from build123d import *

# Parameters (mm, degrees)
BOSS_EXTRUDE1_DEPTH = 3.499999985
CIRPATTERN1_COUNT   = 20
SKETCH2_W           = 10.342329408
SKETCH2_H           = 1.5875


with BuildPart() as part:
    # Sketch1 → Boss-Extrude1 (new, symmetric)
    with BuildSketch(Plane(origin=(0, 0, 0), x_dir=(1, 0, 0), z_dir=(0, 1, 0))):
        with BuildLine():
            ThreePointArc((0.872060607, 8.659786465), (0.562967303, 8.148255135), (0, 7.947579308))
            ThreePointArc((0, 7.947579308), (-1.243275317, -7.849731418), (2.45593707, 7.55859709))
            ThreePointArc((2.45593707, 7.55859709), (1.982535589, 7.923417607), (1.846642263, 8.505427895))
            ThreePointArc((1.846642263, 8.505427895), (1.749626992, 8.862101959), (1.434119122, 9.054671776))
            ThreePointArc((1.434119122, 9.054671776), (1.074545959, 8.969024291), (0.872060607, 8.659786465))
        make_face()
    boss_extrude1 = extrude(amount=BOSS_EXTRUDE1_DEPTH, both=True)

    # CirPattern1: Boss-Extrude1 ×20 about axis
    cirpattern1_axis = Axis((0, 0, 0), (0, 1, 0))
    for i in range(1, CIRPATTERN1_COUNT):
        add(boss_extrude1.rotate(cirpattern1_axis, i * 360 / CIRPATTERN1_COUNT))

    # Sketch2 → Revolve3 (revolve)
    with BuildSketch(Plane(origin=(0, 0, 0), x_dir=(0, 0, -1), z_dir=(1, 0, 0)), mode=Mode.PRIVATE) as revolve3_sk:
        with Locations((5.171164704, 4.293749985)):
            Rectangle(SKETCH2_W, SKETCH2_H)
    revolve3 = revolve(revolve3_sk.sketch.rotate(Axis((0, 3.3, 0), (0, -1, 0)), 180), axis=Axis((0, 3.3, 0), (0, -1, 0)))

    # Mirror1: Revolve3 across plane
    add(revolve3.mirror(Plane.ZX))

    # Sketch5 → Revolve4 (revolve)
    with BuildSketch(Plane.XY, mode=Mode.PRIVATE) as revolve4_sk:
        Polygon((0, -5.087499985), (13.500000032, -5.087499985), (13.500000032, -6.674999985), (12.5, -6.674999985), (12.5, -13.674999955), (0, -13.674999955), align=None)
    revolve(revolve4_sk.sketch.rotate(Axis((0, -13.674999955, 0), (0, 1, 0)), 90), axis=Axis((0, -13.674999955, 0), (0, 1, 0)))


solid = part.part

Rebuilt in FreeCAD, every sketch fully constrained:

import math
import FreeCAD as App
import Part
import Sketcher

V = App.Vector
Q = App.Units.Quantity

doc = App.newDocument("Part")
body = doc.addObject("PartDesign::Body", "Body")

# Sketch on XZ plane
sketch1 = body.newObject("Sketcher::SketchObject", "Sketch")
sketch1.AttachmentSupport = (doc.getObject("XZ_Plane"), [""])
sketch1.MapMode = "FlatFace"
sketch1.addGeometry(Part.ArcOfCircle(Part.Circle(V(0, -8.837579, 0), V(0, 0, 1), 0.89), math.radians(11.523348), math.radians(90)), False)
sketch1.addGeometry(Part.ArcOfCircle(Part.Circle(V(0, 0, 0), V(0, 0, 1), 7.947579), math.radians(-72), math.radians(270)), False)
sketch1.addGeometry(Part.ArcOfCircle(Part.Circle(V(2.730962, -8.405037, 0), V(0, 0, 1), 0.89), math.radians(108), math.radians(186.476652)), False)
sketch1.addGeometry(Part.ArcOfCircle(Part.Circle(V(1.349833, -8.561827, 0), V(0, 0, 1), 0.5), math.radians(-80.295218), math.radians(6.476652)), False)
sketch1.addGeometry(Part.ArcOfCircle(Part.Circle(V(1.361982, -8.559903, 0), V(0, 0, 1), 0.5), math.radians(-168.476652), math.radians(-81.704782)), False)
sketch1.addConstraint(Sketcher.Constraint("Tangent", 0, 2, 1, 2))
sketch1.addConstraint(Sketcher.Constraint("Tangent", 1, 1, 2, 1))
sketch1.addConstraint(Sketcher.Constraint("Tangent", 2, 2, 3, 2))
sketch1.addConstraint(Sketcher.Constraint("Coincident", 3, 1, 4, 2))
sketch1.addConstraint(Sketcher.Constraint("Tangent", 4, 1, 0, 1))
sketch1.addConstraint(Sketcher.Constraint("Coincident", 1, 3, -1, 1))
sketch1.addConstraint(Sketcher.Constraint("Equal", 0, 2))
sketch1.addConstraint(Sketcher.Constraint("Equal", 3, 4))
sketch1.addConstraint(Sketcher.Constraint("PointOnObject", 0, 3, -2))
sketch1.addConstraint(Sketcher.Constraint("Radius", 3, Q("0.5 mm")))
sketch1.addConstraint(Sketcher.Constraint("Radius", 0, Q("0.89 mm")))
sketch1.addConstraint(Sketcher.Constraint("Radius", 1, Q("7.947579 mm")))
sketch1.addConstraint(Sketcher.Constraint("DistanceY", 3, 3, 2, 2, Q("0.056399 mm")))
sketch1.addConstraint(Sketcher.Constraint("DistanceX", -1, 1, 3, 1, Q("1.434119 mm")))
sketch1.addConstraint(Sketcher.Constraint("DistanceY", 3, 1, -1, 1, Q("9.054672 mm")))
pad1 = body.newObject("PartDesign::Pad", "Pad")
pad1.Profile = sketch1
pad1.Length = 7
pad1.Midplane = True
doc.recompute()

polarpattern = body.newObject("PartDesign::PolarPattern", "PolarPattern")
polarpattern.Originals = [pad1]
polarpattern.Axis = (doc.getObject("Y_Axis"), [""])
polarpattern.Angle = 360
polarpattern.Occurrences = 20
body.Tip = polarpattern

# Sketch on YZ plane
sketch2 = body.newObject("Sketcher::SketchObject", "Sketch001")
sketch2.AttachmentSupport = (doc.getObject("YZ_Plane"), [""])
sketch2.MapMode = "FlatFace"
sketch2.addGeometry(Part.LineSegment(V(5.0875, 0, 0), V(3.5, 0, 0)), False)
sketch2.addGeometry(Part.LineSegment(V(3.5, 0, 0), V(3.5, -10.342329, 0)), False)
sketch2.addGeometry(Part.LineSegment(V(3.5, -10.342329, 0), V(5.0875, -10.342329, 0)), False)
sketch2.addGeometry(Part.LineSegment(V(5.0875, -10.342329, 0), V(5.0875, 0, 0)), False)
sketch2.addConstraint(Sketcher.Constraint("Coincident", 0, 2, 1, 1))
sketch2.addConstraint(Sketcher.Constraint("Coincident", 1, 2, 2, 1))
sketch2.addConstraint(Sketcher.Constraint("Coincident", 2, 2, 3, 1))
sketch2.addConstraint(Sketcher.Constraint("Coincident", 3, 2, 0, 1))
sketch2.addConstraint(Sketcher.Constraint("Horizontal", 0))
sketch2.addConstraint(Sketcher.Constraint("Vertical", 1))
sketch2.addConstraint(Sketcher.Constraint("Horizontal", 2))
sketch2.addConstraint(Sketcher.Constraint("Vertical", 3))
sketch2.addConstraint(Sketcher.Constraint("PointOnObject", 0, 2, -1))
sketch2.addConstraint(Sketcher.Constraint("DistanceX", -1, 1, 0, 2, Q("3.5 mm")))
sketch2.addConstraint(Sketcher.Constraint("DistanceX", 0, 2, 0, 1, Q("1.5875 mm")))
sketch2.addConstraint(Sketcher.Constraint("DistanceY", 1, 2, 1, 1, Q("10.342329 mm")))
revolution = body.newObject("PartDesign::Revolution", "Revolution")
revolution.Profile = sketch2
revolution.ReferenceAxis = (sketch2, ["H_Axis"])
revolution.Angle = 360
doc.recompute()

mirrored = body.newObject("PartDesign::Mirrored", "Mirrored")
mirrored.Originals = [revolution]
mirrored.MirrorPlane = (doc.getObject("XZ_Plane"), [""])
body.Tip = mirrored

# Sketch on XY plane
sketch3 = body.newObject("Sketcher::SketchObject", "Sketch002")
sketch3.AttachmentSupport = (doc.getObject("XY_Plane"), [""])
sketch3.MapMode = "FlatFace"
sketch3.addGeometry(Part.LineSegment(V(13.5, -5.0875, 0), V(0, -5.0875, 0)), False)
sketch3.addGeometry(Part.LineSegment(V(0, -5.0875, 0), V(0, -13.675, 0)), False)
sketch3.addGeometry(Part.LineSegment(V(0, -13.675, 0), V(12.5, -13.675, 0)), False)
sketch3.addGeometry(Part.LineSegment(V(12.5, -13.675, 0), V(12.5, -6.675, 0)), False)
sketch3.addGeometry(Part.LineSegment(V(12.5, -6.675, 0), V(13.5, -6.675, 0)), False)
sketch3.addGeometry(Part.LineSegment(V(13.5, -6.675, 0), V(13.5, -5.0875, 0)), False)
sketch3.addConstraint(Sketcher.Constraint("Coincident", 0, 2, 1, 1))
sketch3.addConstraint(Sketcher.Constraint("Coincident", 1, 2, 2, 1))
sketch3.addConstraint(Sketcher.Constraint("Coincident", 2, 2, 3, 1))
sketch3.addConstraint(Sketcher.Constraint("Coincident", 3, 2, 4, 1))
sketch3.addConstraint(Sketcher.Constraint("Coincident", 4, 2, 5, 1))
sketch3.addConstraint(Sketcher.Constraint("Coincident", 5, 2, 0, 1))
sketch3.addConstraint(Sketcher.Constraint("Horizontal", 0))
sketch3.addConstraint(Sketcher.Constraint("Vertical", 1))
sketch3.addConstraint(Sketcher.Constraint("Horizontal", 2))
sketch3.addConstraint(Sketcher.Constraint("Vertical", 3))
sketch3.addConstraint(Sketcher.Constraint("Horizontal", 4))
sketch3.addConstraint(Sketcher.Constraint("Vertical", 5))
sketch3.addConstraint(Sketcher.Constraint("PointOnObject", 0, 2, -2))
sketch3.addConstraint(Sketcher.Constraint("DistanceX", 4, 1, 4, 2, Q("1 mm")))
sketch3.addConstraint(Sketcher.Constraint("DistanceY", 3, 1, 3, 2, Q("7 mm")))
sketch3.addConstraint(Sketcher.Constraint("DistanceX", 0, 2, 0, 1, Q("13.5 mm")))
sketch3.addConstraint(Sketcher.Constraint("DistanceY", 1, 2, 1, 1, Q("8.5875 mm")))
sketch3.addConstraint(Sketcher.Constraint("DistanceY", 1, 2, -1, 1, Q("13.675 mm")))
revolution2 = body.newObject("PartDesign::Revolution", "Revolution001")
revolution2.Profile = sketch3
revolution2.ReferenceAxis = (sketch3, ["V_Axis"])
revolution2.Angle = 360

doc.recompute()
